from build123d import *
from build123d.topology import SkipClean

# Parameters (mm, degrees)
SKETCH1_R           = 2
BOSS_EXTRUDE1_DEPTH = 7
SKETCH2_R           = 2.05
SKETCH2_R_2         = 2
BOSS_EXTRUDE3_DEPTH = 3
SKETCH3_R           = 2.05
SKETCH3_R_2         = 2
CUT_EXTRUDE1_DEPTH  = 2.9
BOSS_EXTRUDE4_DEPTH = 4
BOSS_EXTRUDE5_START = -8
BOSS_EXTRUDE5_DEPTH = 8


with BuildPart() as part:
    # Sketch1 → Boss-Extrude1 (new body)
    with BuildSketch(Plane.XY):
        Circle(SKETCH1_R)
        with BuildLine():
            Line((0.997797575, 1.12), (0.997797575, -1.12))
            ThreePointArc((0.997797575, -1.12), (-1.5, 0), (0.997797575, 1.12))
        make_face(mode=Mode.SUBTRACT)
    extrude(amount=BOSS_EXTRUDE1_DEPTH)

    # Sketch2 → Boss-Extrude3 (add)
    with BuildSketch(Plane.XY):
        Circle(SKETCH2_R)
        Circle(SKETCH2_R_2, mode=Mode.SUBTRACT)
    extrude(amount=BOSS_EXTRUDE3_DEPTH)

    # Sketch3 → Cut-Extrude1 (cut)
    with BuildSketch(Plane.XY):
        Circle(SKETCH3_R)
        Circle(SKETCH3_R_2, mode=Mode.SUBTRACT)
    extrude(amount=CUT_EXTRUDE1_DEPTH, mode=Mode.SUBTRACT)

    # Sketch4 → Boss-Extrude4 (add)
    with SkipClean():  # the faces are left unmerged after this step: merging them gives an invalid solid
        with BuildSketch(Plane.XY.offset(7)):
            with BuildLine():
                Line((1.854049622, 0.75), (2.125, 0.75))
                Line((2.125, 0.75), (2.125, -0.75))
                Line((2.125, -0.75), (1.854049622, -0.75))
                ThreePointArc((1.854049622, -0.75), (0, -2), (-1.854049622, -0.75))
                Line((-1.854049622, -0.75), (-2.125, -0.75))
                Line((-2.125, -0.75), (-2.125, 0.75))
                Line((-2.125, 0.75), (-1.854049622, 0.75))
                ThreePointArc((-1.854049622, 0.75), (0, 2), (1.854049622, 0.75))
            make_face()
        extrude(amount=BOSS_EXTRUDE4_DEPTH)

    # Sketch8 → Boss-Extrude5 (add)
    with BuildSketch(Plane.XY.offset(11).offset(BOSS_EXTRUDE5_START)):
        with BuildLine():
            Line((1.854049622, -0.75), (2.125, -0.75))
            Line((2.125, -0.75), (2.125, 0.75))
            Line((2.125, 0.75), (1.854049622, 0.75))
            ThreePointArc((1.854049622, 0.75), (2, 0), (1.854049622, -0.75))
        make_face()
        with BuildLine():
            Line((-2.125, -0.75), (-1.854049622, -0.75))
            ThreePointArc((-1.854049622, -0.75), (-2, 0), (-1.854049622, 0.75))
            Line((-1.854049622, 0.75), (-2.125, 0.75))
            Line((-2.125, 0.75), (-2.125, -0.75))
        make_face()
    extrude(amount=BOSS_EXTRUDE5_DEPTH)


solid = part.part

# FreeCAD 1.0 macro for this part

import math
import FreeCAD as App
import Part
import Sketcher

V = App.Vector

doc = App.newDocument("Part")
body = doc.addObject("PartDesign::Body", "Body")

# Sketch on XY plane
sketch1 = body.newObject("Sketcher::SketchObject", "Sketch")
sketch1.AttachmentSupport = (doc.getObject("XY_Plane"), [""])
sketch1.MapMode = "FlatFace"
sketch1.addGeometry([
    Part.Circle(V(0, 0, 0), V(0, 0, 1), 2),
    Part.ArcOfCircle(Part.Circle(V(0, 0, 0), V(0, 0, 1), 1.5), math.radians(48), math.radians(312)),
    Part.LineSegment(V(1, 1.1, 0), V(1, -1.1, 0)),
], False)
sketch1.addConstraint([
    Sketcher.Constraint("Coincident", 1, 1, 2, 1),
    Sketcher.Constraint("Coincident", 2, 2, 1, 2),
    Sketcher.Constraint("Vertical", 2),
    Sketcher.Constraint("Coincident", 0, 3, -1, 1),
    Sketcher.Constraint("Coincident", 1, 3, -1, 1),
    Sketcher.Constraint("Diameter", 0, 4.0),
    Sketcher.Constraint("Radius", 1, 1.5),
    Sketcher.Constraint("DistanceY", 2, 2, 2, 1, 2.24),
])
pad1 = body.newObject("PartDesign::Pad", "Pad")
pad1.Profile = sketch1
pad1.Length = 7

# Sketch on XY plane
sketch2 = body.newObject("Sketcher::SketchObject", "Sketch001")
sketch2.AttachmentSupport = (doc.getObject("XY_Plane"), [""])
sketch2.MapMode = "FlatFace"
sketch2.addGeometry([
    Part.Circle(V(0, 0, 0), V(0, 0, 1), 2),
    Part.Circle(V(0, 0, 0), V(0, 0, 1), 2),
], False)
sketch2.addConstraint([
    Sketcher.Constraint("Coincident", 0, 3, -1, 1),
    Sketcher.Constraint("Coincident", 1, 3, -1, 1),
    Sketcher.Constraint("Diameter", 1, 4.0),
    Sketcher.Constraint("Diameter", 0, 4.1),
])
pad2 = body.newObject("PartDesign::Pad", "Pad001")
pad2.Profile = sketch2
pad2.Length = 3

# Sketch on XY plane
sketch3 = body.newObject("Sketcher::SketchObject", "Sketch002")
sketch3.AttachmentSupport = (doc.getObject("XY_Plane"), [""])
sketch3.MapMode = "FlatFace"
sketch3.addGeometry([
    Part.Circle(V(0, 0, 0), V(0, 0, 1), 2),
    Part.Circle(V(0, 0, 0), V(0, 0, 1), 2),
], False)
sketch3.addConstraint([
    Sketcher.Constraint("Coincident", 0, 3, -1, 1),
    Sketcher.Constraint("Coincident", 1, 3, -1, 1),
    Sketcher.Constraint("Diameter", 1, 4.0),
    Sketcher.Constraint("Diameter", 0, 4.1),
])
pocket1 = body.newObject("PartDesign::Pocket", "Pocket")
pocket1.Profile = sketch3
pocket1.Length = 2.9
pocket1.Reversed = True

# Sketch on XY plane
sketch4 = body.newObject("Sketcher::SketchObject", "Sketch003")
sketch4.AttachmentSupport = (doc.getObject("XY_Plane"), [""])
sketch4.MapMode = "FlatFace"
sketch4.AttachmentOffset = App.Placement(V(0, 0, 7), App.Rotation())
sketch4.addGeometry([
    Part.LineSegment(V(2.12, 0.75, 0), V(1.85, 0.75, 0)),  # 0
    Part.ArcOfCircle(Part.Circle(V(0, 0, 0), V(0, 0, 1), 2), math.radians(22), math.radians(158)),  # 1
    Part.LineSegment(V(-1.85, 0.75, 0), V(-2.12, 0.75, 0)),  # 2
    Part.LineSegment(V(-2.12, 0.75, 0), V(-2.12, -0.75, 0)),  # 3
    Part.LineSegment(V(-2.12, -0.75, 0), V(-1.85, -0.75, 0)),  # 4
    Part.ArcOfCircle(Part.Circle(V(0, 0, 0), V(0, 0, 1), 2), math.radians(-158), math.radians(-22)),  # 5
    Part.LineSegment(V(1.85, -0.75, 0), V(2.12, -0.75, 0)),  # 6
    Part.LineSegment(V(2.12, -0.75, 0), V(2.12, 0.75, 0)),  # 7
], False)
sketch4.addConstraint([
    Sketcher.Constraint("Coincident", 0, 2, 1, 1),
    Sketcher.Constraint("Coincident", 1, 2, 2, 1),
    Sketcher.Constraint("Coincident", 2, 2, 3, 1),
    Sketcher.Constraint("Coincident", 3, 2, 4, 1),
    Sketcher.Constraint("Coincident", 4, 2, 5, 1),
    Sketcher.Constraint("Coincident", 5, 2, 6, 1),
    Sketcher.Constraint("Coincident", 6, 2, 7, 1),
    Sketcher.Constraint("Coincident", 7, 2, 0, 1),
    Sketcher.Constraint("Horizontal", 0),
    Sketcher.Constraint("Horizontal", 2),
    Sketcher.Constraint("Vertical", 3),
    Sketcher.Constraint("Horizontal", 4),
    Sketcher.Constraint("Horizontal", 6),
    Sketcher.Constraint("Vertical", 7),
    Sketcher.Constraint("Coincident", 1, 3, -1, 1),
    Sketcher.Constraint("Coincident", 5, 3, -1, 1),
    Sketcher.Constraint("Equal", 1, 5),
    Sketcher.Constraint("Symmetric", 2, 2, 6, 2, -1, 1),
    Sketcher.Constraint("Horizontal", 0, 2, 1, 2),
    Sketcher.Constraint("Horizontal", 4, 2, 5, 2),
    Sketcher.Constraint("Radius", 1, 2.0),
    Sketcher.Constraint("DistanceY", 3, 2, 3, 1, 1.5),
    Sketcher.Constraint("DistanceX", 2, 2, -1, 1, 2.125),
])
pad3 = body.newObject("PartDesign::Pad", "Pad002")
pad3.Profile = sketch4
pad3.Length = 4

# Sketch on XY plane
sketch5 = body.newObject("Sketcher::SketchObject", "Sketch004")
sketch5.AttachmentSupport = (doc.getObject("XY_Plane"), [""])
sketch5.MapMode = "FlatFace"
sketch5.AttachmentOffset = App.Placement(V(0, 0, 3), App.Rotation())
sketch5.addGeometry([
    Part.LineSegment(V(1.85, -0.75, 0), V(2.12, -0.75, 0)),  # 0
    Part.LineSegment(V(2.12, -0.75, 0), V(2.12, 0.75, 0)),  # 1
    Part.LineSegment(V(2.12, 0.75, 0), V(1.85, 0.75, 0)),  # 2
    Part.ArcOfCircle(Part.Circle(V(0, 0, 0), V(0, 0, 1), 2), math.radians(-22), math.radians(22)),  # 3
    Part.LineSegment(V(-2.12, -0.75, 0), V(-1.85, -0.75, 0)),  # 4
    Part.ArcOfCircle(Part.Circle(V(0, 0, 0), V(0, 0, 1), 2), math.radians(158), math.radians(202)),  # 5
    Part.LineSegment(V(-1.85, 0.75, 0), V(-2.12, 0.75, 0)),  # 6
    Part.LineSegment(V(-2.12, 0.75, 0), V(-2.12, -0.75, 0)),  # 7
], False)
sketch5.addConstraint([
    Sketcher.Constraint("Coincident", 0, 2, 1, 1),
    Sketcher.Constraint("Coincident", 1, 2, 2, 1),
    Sketcher.Constraint("Coincident", 2, 2, 3, 2),
    Sketcher.Constraint("Coincident", 3, 1, 0, 1),
    Sketcher.Constraint("Coincident", 4, 2, 5, 2),
    Sketcher.Constraint("Coincident", 5, 1, 6, 1),
    Sketcher.Constraint("Coincident", 6, 2, 7, 1),
    Sketcher.Constraint("Coincident", 7, 2, 4, 1),
    Sketcher.Constraint("Horizontal", 0),
    Sketcher.Constraint("Vertical", 1),
    Sketcher.Constraint("Horizontal", 2),
    Sketcher.Constraint("Horizontal", 4),
    Sketcher.Constraint("Horizontal", 6),
    Sketcher.Constraint("Vertical", 7),
    Sketcher.Constraint("Coincident", 3, 3, -1, 1),
    Sketcher.Constraint("Coincident", 5, 3, -1, 1),
    Sketcher.Constraint("Equal", 3, 5),
    Sketcher.Constraint("Symmetric", 0, 2, 6, 2, -1, 1),
    Sketcher.Constraint("Horizontal", 3, 1, 4, 2),
    Sketcher.Constraint("Horizontal", 2, 2, 5, 1),
    Sketcher.Constraint("Radius", 3, 2.0),
    Sketcher.Constraint("DistanceY", 1, 1, 1, 2, 1.5),
    Sketcher.Constraint("DistanceX", -1, 1, 0, 2, 2.125),
])
pad4 = body.newObject("PartDesign::Pad", "Pad003")
pad4.Profile = sketch5
pad4.Length = 8

doc.recompute()
